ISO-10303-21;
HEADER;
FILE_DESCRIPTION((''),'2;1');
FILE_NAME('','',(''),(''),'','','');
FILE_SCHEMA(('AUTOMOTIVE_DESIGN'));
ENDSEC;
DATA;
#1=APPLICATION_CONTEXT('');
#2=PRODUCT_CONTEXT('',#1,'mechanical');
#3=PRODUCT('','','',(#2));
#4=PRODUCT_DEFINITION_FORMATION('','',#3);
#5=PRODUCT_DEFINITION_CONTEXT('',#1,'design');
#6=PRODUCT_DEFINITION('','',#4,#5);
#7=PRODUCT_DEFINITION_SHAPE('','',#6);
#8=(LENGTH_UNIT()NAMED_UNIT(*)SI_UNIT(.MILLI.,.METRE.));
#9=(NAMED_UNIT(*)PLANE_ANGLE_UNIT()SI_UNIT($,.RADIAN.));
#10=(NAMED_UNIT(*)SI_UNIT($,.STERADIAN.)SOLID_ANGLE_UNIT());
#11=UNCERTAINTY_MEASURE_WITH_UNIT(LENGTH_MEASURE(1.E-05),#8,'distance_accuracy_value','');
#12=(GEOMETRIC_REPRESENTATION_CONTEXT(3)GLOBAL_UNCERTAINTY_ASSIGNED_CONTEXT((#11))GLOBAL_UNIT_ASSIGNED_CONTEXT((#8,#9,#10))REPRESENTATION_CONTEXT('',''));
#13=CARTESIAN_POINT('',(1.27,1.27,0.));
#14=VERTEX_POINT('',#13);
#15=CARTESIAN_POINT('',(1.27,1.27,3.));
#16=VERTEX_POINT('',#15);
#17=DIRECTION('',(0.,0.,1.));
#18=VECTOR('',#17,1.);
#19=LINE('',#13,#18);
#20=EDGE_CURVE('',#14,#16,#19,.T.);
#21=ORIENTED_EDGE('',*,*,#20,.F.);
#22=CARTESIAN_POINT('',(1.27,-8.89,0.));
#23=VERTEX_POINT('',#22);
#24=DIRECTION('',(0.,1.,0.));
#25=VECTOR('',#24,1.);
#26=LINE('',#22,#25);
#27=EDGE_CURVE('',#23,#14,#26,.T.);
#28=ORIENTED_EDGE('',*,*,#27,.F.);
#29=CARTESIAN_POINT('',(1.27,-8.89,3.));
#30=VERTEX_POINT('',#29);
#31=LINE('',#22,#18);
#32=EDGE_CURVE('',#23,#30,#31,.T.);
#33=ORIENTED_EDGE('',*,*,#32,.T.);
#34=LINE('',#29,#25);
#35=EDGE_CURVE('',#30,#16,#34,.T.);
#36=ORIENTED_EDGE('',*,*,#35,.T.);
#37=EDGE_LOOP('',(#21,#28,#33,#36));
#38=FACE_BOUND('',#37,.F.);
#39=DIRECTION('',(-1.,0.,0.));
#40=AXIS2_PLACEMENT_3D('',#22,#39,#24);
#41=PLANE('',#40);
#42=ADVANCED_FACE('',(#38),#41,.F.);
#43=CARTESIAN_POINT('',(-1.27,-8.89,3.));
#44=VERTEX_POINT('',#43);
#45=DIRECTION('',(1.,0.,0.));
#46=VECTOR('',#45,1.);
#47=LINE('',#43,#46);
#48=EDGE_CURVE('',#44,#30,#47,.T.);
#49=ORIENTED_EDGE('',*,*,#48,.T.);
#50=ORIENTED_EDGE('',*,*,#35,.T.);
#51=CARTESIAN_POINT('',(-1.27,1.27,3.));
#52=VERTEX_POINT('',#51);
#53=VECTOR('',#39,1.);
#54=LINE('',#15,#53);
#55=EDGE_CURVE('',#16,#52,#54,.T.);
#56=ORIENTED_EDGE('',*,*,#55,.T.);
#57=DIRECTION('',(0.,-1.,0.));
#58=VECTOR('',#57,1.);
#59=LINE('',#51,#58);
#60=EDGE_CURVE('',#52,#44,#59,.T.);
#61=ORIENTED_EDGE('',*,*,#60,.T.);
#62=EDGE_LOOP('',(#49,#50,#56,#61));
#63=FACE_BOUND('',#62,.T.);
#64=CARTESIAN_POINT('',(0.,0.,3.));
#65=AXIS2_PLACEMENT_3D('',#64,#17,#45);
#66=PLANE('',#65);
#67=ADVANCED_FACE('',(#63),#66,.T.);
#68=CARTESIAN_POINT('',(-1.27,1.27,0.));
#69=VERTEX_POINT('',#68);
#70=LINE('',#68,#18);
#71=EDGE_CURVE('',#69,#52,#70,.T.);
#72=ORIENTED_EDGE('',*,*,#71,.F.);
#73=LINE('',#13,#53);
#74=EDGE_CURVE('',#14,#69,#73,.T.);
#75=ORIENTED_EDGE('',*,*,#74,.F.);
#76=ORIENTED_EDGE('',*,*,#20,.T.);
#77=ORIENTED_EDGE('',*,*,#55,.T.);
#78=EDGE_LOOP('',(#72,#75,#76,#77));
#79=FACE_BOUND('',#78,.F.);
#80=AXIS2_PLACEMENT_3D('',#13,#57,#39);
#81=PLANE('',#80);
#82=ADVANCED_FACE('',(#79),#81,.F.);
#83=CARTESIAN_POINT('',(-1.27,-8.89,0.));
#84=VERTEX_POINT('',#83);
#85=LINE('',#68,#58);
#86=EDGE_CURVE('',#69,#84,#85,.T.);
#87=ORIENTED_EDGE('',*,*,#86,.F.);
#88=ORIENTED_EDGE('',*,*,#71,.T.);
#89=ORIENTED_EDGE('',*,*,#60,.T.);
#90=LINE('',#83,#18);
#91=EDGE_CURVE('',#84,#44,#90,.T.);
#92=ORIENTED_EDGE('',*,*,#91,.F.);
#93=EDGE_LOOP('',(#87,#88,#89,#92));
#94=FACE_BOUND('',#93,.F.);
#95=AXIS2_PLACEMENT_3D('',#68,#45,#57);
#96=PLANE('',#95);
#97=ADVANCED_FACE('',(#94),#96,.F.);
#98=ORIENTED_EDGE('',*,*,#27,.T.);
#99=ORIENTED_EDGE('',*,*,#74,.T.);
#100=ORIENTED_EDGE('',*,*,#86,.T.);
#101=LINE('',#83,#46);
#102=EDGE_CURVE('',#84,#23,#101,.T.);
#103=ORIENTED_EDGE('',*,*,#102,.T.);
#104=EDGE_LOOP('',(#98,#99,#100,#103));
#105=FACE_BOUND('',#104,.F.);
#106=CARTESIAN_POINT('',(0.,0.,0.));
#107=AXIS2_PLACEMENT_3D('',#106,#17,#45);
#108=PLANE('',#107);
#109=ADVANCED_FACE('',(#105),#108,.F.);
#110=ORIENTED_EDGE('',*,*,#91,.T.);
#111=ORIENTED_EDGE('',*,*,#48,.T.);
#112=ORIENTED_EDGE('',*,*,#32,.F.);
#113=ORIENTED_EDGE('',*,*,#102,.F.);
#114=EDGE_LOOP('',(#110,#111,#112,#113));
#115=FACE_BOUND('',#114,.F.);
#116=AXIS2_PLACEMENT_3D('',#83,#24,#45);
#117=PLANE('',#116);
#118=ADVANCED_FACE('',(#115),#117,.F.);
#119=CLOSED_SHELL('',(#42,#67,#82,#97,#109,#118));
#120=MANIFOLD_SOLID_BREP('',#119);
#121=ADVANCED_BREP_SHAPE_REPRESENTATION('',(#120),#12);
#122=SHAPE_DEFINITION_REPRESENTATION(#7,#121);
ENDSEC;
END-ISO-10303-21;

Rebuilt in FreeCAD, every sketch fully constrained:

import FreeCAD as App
import Part
import Sketcher

V = App.Vector
Q = App.Units.Quantity


def add_polygon(sketch, points):
    """Adds a closed chain of lines whose ends are joined by coincident constraints."""
    first, n = sketch.GeometryCount, len(points)
    for a, b in zip(points, points[1:] + points[:1]):
        sketch.addGeometry(Part.LineSegment(App.Vector(*a, 0), App.Vector(*b, 0)), False)
    for i in range(n):
        sketch.addConstraint(Sketcher.Constraint("Coincident", first + i, 2, first + (i + 1) % n, 1))

doc = App.newDocument("Part")
body = doc.addObject("PartDesign::Body", "Body")

# Sketch on XY plane
sketch1 = body.newObject("Sketcher::SketchObject", "Sketch")
sketch1.AttachmentSupport = (doc.getObject("XY_Plane"), [""])
sketch1.MapMode = "FlatFace"
add_polygon(sketch1, [(1.3, 1.3), (-1.3, 1.3), (-1.3, -8.9), (1.3, -8.9)])  # lines 0-3
sketch1.addConstraint([
    Sketcher.Constraint("Horizontal", 0),
    Sketcher.Constraint("Vertical", 1),
    Sketcher.Constraint("Horizontal", 2),
    Sketcher.Constraint("Vertical", 3),
    Sketcher.Constraint("DistanceX", 0, 2, 0, 1, Q("0.1 in")),
    Sketcher.Constraint("DistanceY", 1, 2, 1, 1, Q("0.4 in")),
    Sketcher.Constraint("DistanceX", 0, 2, -1, 1, Q("0.05 in")),
    Sketcher.Constraint("DistanceY", -1, 1, 0, 2, Q("0.05 in")),
])
pad1 = body.newObject("PartDesign::Pad", "Pad")
pad1.Profile = sketch1
pad1.Length = Q("0.1181102 in")

doc.recompute()
